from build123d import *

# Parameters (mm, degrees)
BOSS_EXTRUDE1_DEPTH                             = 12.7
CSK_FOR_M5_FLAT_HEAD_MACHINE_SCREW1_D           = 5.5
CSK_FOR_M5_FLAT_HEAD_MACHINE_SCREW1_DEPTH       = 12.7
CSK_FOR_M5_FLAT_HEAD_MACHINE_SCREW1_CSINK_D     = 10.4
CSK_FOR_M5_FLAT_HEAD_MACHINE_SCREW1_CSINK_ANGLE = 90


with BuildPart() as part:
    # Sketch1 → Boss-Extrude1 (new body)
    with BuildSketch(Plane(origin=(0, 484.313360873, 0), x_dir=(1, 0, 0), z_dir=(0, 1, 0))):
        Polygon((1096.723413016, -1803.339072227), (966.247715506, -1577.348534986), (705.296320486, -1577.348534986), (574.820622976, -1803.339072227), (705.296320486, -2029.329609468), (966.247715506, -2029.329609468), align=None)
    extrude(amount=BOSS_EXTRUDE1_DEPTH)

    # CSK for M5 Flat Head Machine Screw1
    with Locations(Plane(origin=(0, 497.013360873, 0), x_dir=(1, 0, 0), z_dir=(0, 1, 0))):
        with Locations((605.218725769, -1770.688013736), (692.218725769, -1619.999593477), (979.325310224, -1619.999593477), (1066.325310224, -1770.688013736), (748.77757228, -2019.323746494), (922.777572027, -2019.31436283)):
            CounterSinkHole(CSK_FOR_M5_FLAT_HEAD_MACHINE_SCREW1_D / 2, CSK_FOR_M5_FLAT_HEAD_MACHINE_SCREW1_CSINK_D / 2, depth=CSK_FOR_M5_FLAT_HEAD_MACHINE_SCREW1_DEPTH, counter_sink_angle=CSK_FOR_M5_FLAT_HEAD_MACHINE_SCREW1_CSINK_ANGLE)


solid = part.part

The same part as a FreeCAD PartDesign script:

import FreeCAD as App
import Part
import Sketcher
Q = App.Units.Quantity


def add_polygon(sketch, points):
    """Adds a closed chain of lines whose ends are joined by coincident constraints."""
    first, n = sketch.GeometryCount, len(points)
    for a, b in zip(points, points[1:] + points[:1]):
        sketch.addGeometry(Part.LineSegment(App.Vector(*a, 0), App.Vector(*b, 0)), False)
    for i in range(n):
        sketch.addConstraint(Sketcher.Constraint("Coincident", first + i, 2, first + (i + 1) % n, 1))

doc = App.newDocument("Part")
body = doc.addObject("PartDesign::Body", "Body")

# Sketch on XZ plane
sketch1 = body.newObject("Sketcher::SketchObject", "Sketch")
sketch1.AttachmentSupport = (doc.getObject("XZ_Plane"), [""])
sketch1.MapMode = "FlatFace"
sketch1.AttachmentOffset = App.Placement(App.Vector(0, 0, -484.313361), App.Rotation())
add_polygon(sketch1, [(1097, 1803), (966, 1577), (705, 1577), (575, 1803), (705, 2029), (966, 2029)])  # lines 0-5
sketch1.addConstraint([
    Sketcher.Constraint("Horizontal", 1),
    Sketcher.Constraint("Horizontal", 4),
    Sketcher.Constraint("Parallel", 0, 3),
    Sketcher.Constraint("Parallel", 2, 5),
    Sketcher.Constraint("Horizontal", 2, 2, 5, 2),
    Sketcher.Constraint("Vertical", 1, 2, 3, 2),
    Sketcher.Constraint("Vertical", 0, 2, 4, 2),
    Sketcher.Constraint("Angle", 0, Q("-120 deg")),
    Sketcher.Constraint("DistanceX", 1, 2, 1, 1, 260.951395),
    Sketcher.Constraint("DistanceX", -1, 1, 1, 2, 705.29632),
    Sketcher.Constraint("DistanceY", -1, 1, 3, 2, 2029.329609),
    Sketcher.Constraint("DistanceX", 2, 2, 5, 2, 521.90279),
])
pad1 = body.newObject("PartDesign::Pad", "Pad")
pad1.Profile = sketch1
pad1.Length = 12.7
pad1.Reversed = True

# Sketch on XZ plane
sketch2 = body.newObject("Sketcher::SketchObject", "Sketch001")
sketch2.AttachmentSupport = (doc.getObject("XZ_Plane"), [""])
sketch2.MapMode = "FlatFace"
sketch2.AttachmentOffset = App.Placement(App.Vector(0, 0, -497.013361), App.Rotation())
sketch2.addGeometry([
    Part.Circle(App.Vector(605.2, 1770.7, 0), App.Vector(0, 0, 1), 2.8),  # 0
    Part.Circle(App.Vector(692.2, 1620, 0), App.Vector(0, 0, 1), 2.8),  # 1
    Part.Circle(App.Vector(979.3, 1620, 0), App.Vector(0, 0, 1), 2.8),  # 2
    Part.Circle(App.Vector(1066.3, 1770.7, 0), App.Vector(0, 0, 1), 2.8),  # 3
    Part.Circle(App.Vector(748.8, 2019.3, 0), App.Vector(0, 0, 1), 2.8),  # 4
    Part.Circle(App.Vector(922.8, 2019.3, 0), App.Vector(0, 0, 1), 2.8),  # 5
], False)
sketch2.addConstraint([
    Sketcher.Constraint("Equal", 0, 1),
    Sketcher.Constraint("Equal", 1, 2),
    Sketcher.Constraint("Equal", 2, 3),
    Sketcher.Constraint("Equal", 3, 4),
    Sketcher.Constraint("Equal", 4, 5),
    Sketcher.Constraint("Horizontal", 1, 3, 2, 3),
    Sketcher.Constraint("Horizontal", 0, 3, 3, 3),
    Sketcher.Constraint("Diameter", 0, 5.5),
    Sketcher.Constraint("DistanceX", 0, 3, 1, 3, 87.0),
    Sketcher.Constraint("DistanceX", 2, 3, 3, 3, 87.0),
    Sketcher.Constraint("DistanceX", 4, 3, 5, 3, 174.0),
    Sketcher.Constraint("DistanceX", -1, 1, 2, 3, 979.32531),
    Sketcher.Constraint("DistanceY", 1, 3, 0, 3, 150.68842),
    Sketcher.Constraint("DistanceX", 5, 3, 3, 3, 143.547738),
    Sketcher.Constraint("DistanceY", 3, 3, 5, 3, 248.626349),
    Sketcher.Constraint("DistanceX", -1, 1, 0, 3, 605.218726),
    Sketcher.Constraint("DistanceY", -1, 1, 0, 3, 1770.688014),
    Sketcher.Constraint("DistanceY", -1, 1, 4, 3, 2019.323746),
])
doc.recompute()
hole = body.newObject("PartDesign::Hole", "Hole")
hole.Profile = sketch2
hole.ThreadType = "None"
hole.Diameter = 5.5
hole.DepthType = "Dimension"
hole.Depth = 12.7
hole.DrillPoint = "Flat"
hole.HoleCutType = "Countersink"
hole.HoleCutDiameter = 10.4
hole.HoleCutCountersinkAngle = 90
hole.Reversed = True

doc.recompute()
